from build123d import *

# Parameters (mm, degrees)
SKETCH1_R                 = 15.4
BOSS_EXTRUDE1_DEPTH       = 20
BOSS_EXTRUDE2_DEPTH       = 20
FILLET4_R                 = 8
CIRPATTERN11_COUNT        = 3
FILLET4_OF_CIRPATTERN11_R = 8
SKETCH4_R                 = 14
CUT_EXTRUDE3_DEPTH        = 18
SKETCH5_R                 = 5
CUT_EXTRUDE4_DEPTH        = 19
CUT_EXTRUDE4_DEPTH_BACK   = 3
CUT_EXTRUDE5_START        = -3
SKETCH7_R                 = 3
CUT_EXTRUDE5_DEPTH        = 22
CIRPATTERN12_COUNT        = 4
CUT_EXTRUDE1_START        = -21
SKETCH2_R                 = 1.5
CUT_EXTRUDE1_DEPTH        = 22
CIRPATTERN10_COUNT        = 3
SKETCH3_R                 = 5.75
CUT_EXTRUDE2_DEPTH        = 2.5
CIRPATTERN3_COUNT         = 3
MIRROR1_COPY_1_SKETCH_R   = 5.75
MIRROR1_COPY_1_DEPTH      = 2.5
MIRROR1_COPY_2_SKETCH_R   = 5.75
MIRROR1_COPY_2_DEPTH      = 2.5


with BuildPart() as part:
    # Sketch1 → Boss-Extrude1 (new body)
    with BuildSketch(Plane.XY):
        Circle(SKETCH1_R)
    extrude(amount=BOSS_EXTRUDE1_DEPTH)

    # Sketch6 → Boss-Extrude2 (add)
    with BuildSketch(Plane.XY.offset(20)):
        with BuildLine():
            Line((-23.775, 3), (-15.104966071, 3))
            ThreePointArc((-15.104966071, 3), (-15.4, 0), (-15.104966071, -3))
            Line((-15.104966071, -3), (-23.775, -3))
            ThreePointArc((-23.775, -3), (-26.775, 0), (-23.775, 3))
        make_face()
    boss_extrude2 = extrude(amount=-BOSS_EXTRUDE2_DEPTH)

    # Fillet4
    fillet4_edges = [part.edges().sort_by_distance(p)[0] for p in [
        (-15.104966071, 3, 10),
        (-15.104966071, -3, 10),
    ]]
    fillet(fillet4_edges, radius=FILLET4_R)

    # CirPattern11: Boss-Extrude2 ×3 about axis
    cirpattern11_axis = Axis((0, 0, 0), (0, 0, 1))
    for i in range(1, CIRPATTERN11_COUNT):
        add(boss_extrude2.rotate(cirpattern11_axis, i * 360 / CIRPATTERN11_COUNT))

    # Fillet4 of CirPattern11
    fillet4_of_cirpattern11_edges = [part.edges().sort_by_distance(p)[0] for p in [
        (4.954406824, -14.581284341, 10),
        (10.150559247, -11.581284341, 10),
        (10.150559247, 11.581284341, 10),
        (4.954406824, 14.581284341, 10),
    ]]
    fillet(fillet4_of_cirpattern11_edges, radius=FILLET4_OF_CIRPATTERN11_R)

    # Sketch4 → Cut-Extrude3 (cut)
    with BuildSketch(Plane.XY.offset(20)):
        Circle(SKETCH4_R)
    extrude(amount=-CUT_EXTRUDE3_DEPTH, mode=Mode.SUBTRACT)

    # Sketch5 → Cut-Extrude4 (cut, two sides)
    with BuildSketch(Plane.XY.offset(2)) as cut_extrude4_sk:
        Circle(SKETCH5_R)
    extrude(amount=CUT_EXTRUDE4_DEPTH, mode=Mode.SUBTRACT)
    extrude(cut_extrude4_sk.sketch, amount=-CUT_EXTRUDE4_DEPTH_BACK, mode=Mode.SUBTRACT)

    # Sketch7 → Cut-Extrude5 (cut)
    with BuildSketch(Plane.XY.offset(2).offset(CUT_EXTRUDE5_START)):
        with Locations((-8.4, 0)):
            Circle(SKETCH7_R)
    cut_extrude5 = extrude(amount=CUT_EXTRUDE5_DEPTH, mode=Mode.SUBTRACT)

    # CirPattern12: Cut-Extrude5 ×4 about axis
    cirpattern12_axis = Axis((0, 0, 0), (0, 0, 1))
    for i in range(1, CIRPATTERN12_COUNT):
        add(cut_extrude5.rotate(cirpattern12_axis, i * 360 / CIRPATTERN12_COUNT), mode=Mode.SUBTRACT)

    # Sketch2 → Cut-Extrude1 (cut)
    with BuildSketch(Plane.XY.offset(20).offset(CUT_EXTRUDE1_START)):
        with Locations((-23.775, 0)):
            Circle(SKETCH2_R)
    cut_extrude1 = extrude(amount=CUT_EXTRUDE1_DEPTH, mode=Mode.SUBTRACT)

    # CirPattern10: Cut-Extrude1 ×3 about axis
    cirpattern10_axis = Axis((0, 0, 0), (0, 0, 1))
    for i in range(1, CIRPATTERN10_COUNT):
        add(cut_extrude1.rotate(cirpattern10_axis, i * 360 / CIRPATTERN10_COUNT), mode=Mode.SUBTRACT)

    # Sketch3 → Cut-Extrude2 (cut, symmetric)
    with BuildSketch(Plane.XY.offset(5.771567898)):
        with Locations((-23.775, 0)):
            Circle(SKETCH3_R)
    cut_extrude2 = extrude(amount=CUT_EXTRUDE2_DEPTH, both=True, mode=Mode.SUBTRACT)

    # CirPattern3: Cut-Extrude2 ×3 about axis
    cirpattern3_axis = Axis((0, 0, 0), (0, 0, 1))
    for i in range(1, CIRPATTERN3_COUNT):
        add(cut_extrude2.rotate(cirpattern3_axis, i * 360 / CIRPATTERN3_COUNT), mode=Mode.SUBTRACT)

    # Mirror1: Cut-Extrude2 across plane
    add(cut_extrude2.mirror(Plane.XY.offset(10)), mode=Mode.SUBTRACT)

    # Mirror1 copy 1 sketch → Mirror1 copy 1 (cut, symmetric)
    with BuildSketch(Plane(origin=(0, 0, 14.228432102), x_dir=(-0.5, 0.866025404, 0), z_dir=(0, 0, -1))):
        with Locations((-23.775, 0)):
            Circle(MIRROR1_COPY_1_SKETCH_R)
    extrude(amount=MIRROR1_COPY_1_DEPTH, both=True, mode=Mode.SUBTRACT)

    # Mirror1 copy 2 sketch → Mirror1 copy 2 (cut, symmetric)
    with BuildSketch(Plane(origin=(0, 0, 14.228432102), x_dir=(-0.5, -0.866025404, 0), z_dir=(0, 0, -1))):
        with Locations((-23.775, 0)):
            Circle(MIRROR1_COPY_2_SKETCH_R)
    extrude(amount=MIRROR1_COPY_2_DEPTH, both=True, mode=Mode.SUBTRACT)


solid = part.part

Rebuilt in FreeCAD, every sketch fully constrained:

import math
import FreeCAD as App
import Part
import Sketcher
from FreeCAD import Vector


def edges_at(feature, points):
    """Names of the edges that pass closest to the given points."""
    edges = feature.Shape.Edges
    near = lambda p: min(range(len(edges)), key=lambda i: edges[i].distToShape(Part.Vertex(*p))[0])
    return sorted({f"Edge{near(p) + 1}" for p in points})

doc = App.newDocument("Part")
body = doc.addObject("PartDesign::Body", "Body")

sketch1 = body.newObject("Sketcher::SketchObject", "Sketch")
sketch1.AttachmentSupport = (doc.getObject("XY_Plane"), [""])
sketch1.MapMode = "FlatFace"
sketch1.addGeometry(Part.Circle(Vector(0, 0, 0), Vector(0, 0, 1), 15), False)
sketch1.addConstraint(Sketcher.Constraint("Coincident", 0, 3, -1, 1))
sketch1.addConstraint(Sketcher.Constraint("Diameter", 0, 30.8))
pad1 = body.newObject("PartDesign::Pad", "Pad")
pad1.Profile = sketch1
pad1.Length = 20

sketch2 = body.newObject("Sketcher::SketchObject", "Sketch001")
sketch2.AttachmentSupport = (doc.getObject("XY_Plane"), [""])
sketch2.MapMode = "FlatFace"
sketch2.AttachmentOffset = App.Placement(Vector(0, 0, 20), App.Rotation())
sketch2.addGeometry(Part.LineSegment(Vector(-15.1, 3, 0), Vector(-23.8, 3, 0)), False)
sketch2.addGeometry(Part.ArcOfCircle(Part.Circle(Vector(-23.8, 0, 0), Vector(0, 0, 1), 3), math.radians(90), math.radians(270)), False)
sketch2.addGeometry(Part.LineSegment(Vector(-23.8, -3, 0), Vector(-15.1, -3, 0)), False)
sketch2.addGeometry(Part.ArcOfCircle(Part.Circle(Vector(0, 0, 0), Vector(0, 0, 1), 15.4), math.radians(169), math.radians(191)), False)
sketch2.addConstraint(Sketcher.Constraint("Tangent", 0, 2, 1, 1))
sketch2.addConstraint(Sketcher.Constraint("Tangent", 1, 2, 2, 1))
sketch2.addConstraint(Sketcher.Constraint("Coincident", 2, 2, 3, 2))
sketch2.addConstraint(Sketcher.Constraint("Coincident", 3, 1, 0, 1))
sketch2.addConstraint(Sketcher.Constraint("Horizontal", 0))
sketch2.addConstraint(Sketcher.Constraint("Horizontal", 2))
sketch2.addConstraint(Sketcher.Constraint("Coincident", 3, 3, -1, 1))
sketch2.addConstraint(Sketcher.Constraint("PointOnObject", 1, 3, -1))
sketch2.addConstraint(Sketcher.Constraint("Radius", 1, 3.0))
sketch2.addConstraint(Sketcher.Constraint("Radius", 3, 15.4))
sketch2.addConstraint(Sketcher.Constraint("DistanceX", 1, 3, -1, 1, 23.775))
pad2 = body.newObject("PartDesign::Pad", "Pad001")
pad2.Profile = sketch2
pad2.Length = 20
pad2.Reversed = True
doc.recompute()

fillet = body.newObject("PartDesign::Fillet", "Fillet")
fillet.Base = (pad2, edges_at(pad2, [(-15.105, 3, 10), (-15.105, -3, 10)]))
fillet.Radius = 8
doc.recompute()

polarpattern = body.newObject("PartDesign::PolarPattern", "PolarPattern")
polarpattern.Originals = [pad2]
polarpattern.Axis = (doc.getObject("Z_Axis"), [""])
polarpattern.Angle = 360
polarpattern.Occurrences = 3
body.Tip = polarpattern
doc.recompute()

fillet2 = body.newObject("PartDesign::Fillet", "Fillet001")
fillet2.Base = (polarpattern, edges_at(polarpattern, [
    (4.954, -14.581, 10),
    (10.151, -11.581, 10),
    (10.151, 11.581, 10),
    (4.954, 14.581, 10),
]))
fillet2.Radius = 8

sketch3 = body.newObject("Sketcher::SketchObject", "Sketch002")
sketch3.AttachmentSupport = (doc.getObject("XY_Plane"), [""])
sketch3.MapMode = "FlatFace"
sketch3.AttachmentOffset = App.Placement(Vector(0, 0, 20), App.Rotation())
sketch3.addGeometry(Part.Circle(Vector(0, 0, 0), Vector(0, 0, 1), 14), False)
sketch3.addConstraint(Sketcher.Constraint("Coincident", 0, 3, -1, 1))
sketch3.addConstraint(Sketcher.Constraint("Diameter", 0, 28.0))
pocket1 = body.newObject("PartDesign::Pocket", "Pocket")
pocket1.Profile = sketch3
pocket1.Length = 18

sketch4 = body.newObject("Sketcher::SketchObject", "Sketch003")
sketch4.AttachmentSupport = (doc.getObject("XY_Plane"), [""])
sketch4.MapMode = "FlatFace"
sketch4.AttachmentOffset = App.Placement(Vector(0, 0, 2), App.Rotation())
sketch4.addGeometry(Part.Circle(Vector(0, 0, 0), Vector(0, 0, 1), 5), False)
sketch4.addConstraint(Sketcher.Constraint("Coincident", 0, 3, -1, 1))
sketch4.addConstraint(Sketcher.Constraint("Diameter", 0, 10.0))
pocket2 = body.newObject("PartDesign::Pocket", "Pocket001")
pocket2.Profile = sketch4
pocket2.Type = "ThroughAll"
pocket2.Midplane = True

sketch5 = body.newObject("Sketcher::SketchObject", "Sketch004")
sketch5.AttachmentSupport = (doc.getObject("XY_Plane"), [""])
sketch5.MapMode = "FlatFace"
sketch5.AttachmentOffset = App.Placement(Vector(0, 0, -1), App.Rotation())
sketch5.addGeometry(Part.Circle(Vector(-8.4, 0, 0), Vector(0, 0, 1), 3), False)
sketch5.addConstraint(Sketcher.Constraint("PointOnObject", 0, 3, -1))
sketch5.addConstraint(Sketcher.Constraint("Diameter", 0, 6.0))
sketch5.addConstraint(Sketcher.Constraint("DistanceX", 0, 3, -1, 1, 8.4))
pocket3 = body.newObject("PartDesign::Pocket", "Pocket002")
pocket3.Profile = sketch5
pocket3.Length = 22
pocket3.Reversed = True
doc.recompute()

polarpattern2 = body.newObject("PartDesign::PolarPattern", "PolarPattern001")
polarpattern2.Originals = [pocket3]
polarpattern2.Axis = (doc.getObject("Z_Axis"), [""])
polarpattern2.Angle = 360
polarpattern2.Occurrences = 4
body.Tip = polarpattern2

sketch6 = body.newObject("Sketcher::SketchObject", "Sketch005")
sketch6.AttachmentSupport = (doc.getObject("XY_Plane"), [""])
sketch6.MapMode = "FlatFace"
sketch6.AttachmentOffset = App.Placement(Vector(0, 0, -1), App.Rotation())
sketch6.addGeometry(Part.Circle(Vector(-23.8, 0, 0), Vector(0, 0, 1), 1.5), False)
sketch6.addConstraint(Sketcher.Constraint("PointOnObject", 0, 3, -1))
sketch6.addConstraint(Sketcher.Constraint("Diameter", 0, 3.0))
sketch6.addConstraint(Sketcher.Constraint("DistanceX", 0, 3, -1, 1, 23.775))
pocket4 = body.newObject("PartDesign::Pocket", "Pocket003")
pocket4.Profile = sketch6
pocket4.Length = 22
pocket4.Reversed = True
doc.recompute()

polarpattern3 = body.newObject("PartDesign::PolarPattern", "PolarPattern002")
polarpattern3.Originals = [pocket4]
polarpattern3.Axis = (doc.getObject("Z_Axis"), [""])
polarpattern3.Angle = 360
polarpattern3.Occurrences = 3
body.Tip = polarpattern3

sketch7 = body.newObject("Sketcher::SketchObject", "Sketch006")
sketch7.AttachmentSupport = (doc.getObject("XY_Plane"), [""])
sketch7.MapMode = "FlatFace"
sketch7.AttachmentOffset = App.Placement(Vector(0, 0, 5.771568), App.Rotation())
sketch7.addGeometry(Part.Circle(Vector(-24, 0, 0), Vector(0, 0, 1), 6), False)
sketch7.addConstraint(Sketcher.Constraint("PointOnObject", 0, 3, -1))
sketch7.addConstraint(Sketcher.Constraint("Diameter", 0, 11.5))
sketch7.addConstraint(Sketcher.Constraint("DistanceX", 0, 3, -1, 1, 23.775))
pocket5 = body.newObject("PartDesign::Pocket", "Pocket004")
pocket5.Profile = sketch7
pocket5.Length = 5
pocket5.Midplane = True
doc.recompute()

polarpattern4 = body.newObject("PartDesign::PolarPattern", "PolarPattern003")
polarpattern4.Originals = [pocket5]
polarpattern4.Axis = (doc.getObject("Z_Axis"), [""])
polarpattern4.Angle = 360
polarpattern4.Occurrences = 3
body.Tip = polarpattern4
doc.recompute()

datumplane = body.newObject("PartDesign::Plane", "DatumPlane")
datumplane.AttachmentSupport = (doc.getObject("XY_Plane"), [""])
datumplane.MapMode = "FlatFace"
datumplane.AttachmentOffset = App.Placement(Vector(0, 0, 10), App.Rotation())
mirrored = body.newObject("PartDesign::Mirrored", "Mirrored")
mirrored.Originals = [pocket5]
mirrored.MirrorPlane = (datumplane, [""])
body.Tip = mirrored

sketch8 = body.newObject("Sketcher::SketchObject", "Sketch007")
sketch8.AttachmentSupport = (doc.getObject("XY_Plane"), [""])
sketch8.MapMode = "FlatFace"
sketch8.AttachmentOffset = App.Placement(Vector(0, 0, 14.228432), App.Rotation())
sketch8.addGeometry(Part.Circle(Vector(12, -21, 0), Vector(0, 0, 1), 6), False)
sketch8.addConstraint(Sketcher.Constraint("Diameter", 0, 11.5))
sketch8.addConstraint(Sketcher.Constraint("DistanceX", -1, 1, 0, 3, 11.8875))
sketch8.addConstraint(Sketcher.Constraint("DistanceY", 0, 3, -1, 1, 20.589754))
pocket6 = body.newObject("PartDesign::Pocket", "Pocket005")
pocket6.Profile = sketch8
pocket6.Length = 5
pocket6.Midplane = True

sketch9 = body.newObject("Sketcher::SketchObject", "Sketch008")
sketch9.AttachmentSupport = (doc.getObject("XY_Plane"), [""])
sketch9.MapMode = "FlatFace"
sketch9.AttachmentOffset = App.Placement(Vector(0, 0, 14.228432), App.Rotation())
sketch9.addGeometry(Part.Circle(Vector(12, 21, 0), Vector(0, 0, 1), 6), False)
sketch9.addConstraint(Sketcher.Constraint("Diameter", 0, 11.5))
sketch9.addConstraint(Sketcher.Constraint("DistanceX", -1, 1, 0, 3, 11.8875))
sketch9.addConstraint(Sketcher.Constraint("DistanceY", -1, 1, 0, 3, 20.589754))
pocket7 = body.newObject("PartDesign::Pocket", "Pocket006")
pocket7.Profile = sketch9
pocket7.Length = 5
pocket7.Midplane = True

doc.recompute()
